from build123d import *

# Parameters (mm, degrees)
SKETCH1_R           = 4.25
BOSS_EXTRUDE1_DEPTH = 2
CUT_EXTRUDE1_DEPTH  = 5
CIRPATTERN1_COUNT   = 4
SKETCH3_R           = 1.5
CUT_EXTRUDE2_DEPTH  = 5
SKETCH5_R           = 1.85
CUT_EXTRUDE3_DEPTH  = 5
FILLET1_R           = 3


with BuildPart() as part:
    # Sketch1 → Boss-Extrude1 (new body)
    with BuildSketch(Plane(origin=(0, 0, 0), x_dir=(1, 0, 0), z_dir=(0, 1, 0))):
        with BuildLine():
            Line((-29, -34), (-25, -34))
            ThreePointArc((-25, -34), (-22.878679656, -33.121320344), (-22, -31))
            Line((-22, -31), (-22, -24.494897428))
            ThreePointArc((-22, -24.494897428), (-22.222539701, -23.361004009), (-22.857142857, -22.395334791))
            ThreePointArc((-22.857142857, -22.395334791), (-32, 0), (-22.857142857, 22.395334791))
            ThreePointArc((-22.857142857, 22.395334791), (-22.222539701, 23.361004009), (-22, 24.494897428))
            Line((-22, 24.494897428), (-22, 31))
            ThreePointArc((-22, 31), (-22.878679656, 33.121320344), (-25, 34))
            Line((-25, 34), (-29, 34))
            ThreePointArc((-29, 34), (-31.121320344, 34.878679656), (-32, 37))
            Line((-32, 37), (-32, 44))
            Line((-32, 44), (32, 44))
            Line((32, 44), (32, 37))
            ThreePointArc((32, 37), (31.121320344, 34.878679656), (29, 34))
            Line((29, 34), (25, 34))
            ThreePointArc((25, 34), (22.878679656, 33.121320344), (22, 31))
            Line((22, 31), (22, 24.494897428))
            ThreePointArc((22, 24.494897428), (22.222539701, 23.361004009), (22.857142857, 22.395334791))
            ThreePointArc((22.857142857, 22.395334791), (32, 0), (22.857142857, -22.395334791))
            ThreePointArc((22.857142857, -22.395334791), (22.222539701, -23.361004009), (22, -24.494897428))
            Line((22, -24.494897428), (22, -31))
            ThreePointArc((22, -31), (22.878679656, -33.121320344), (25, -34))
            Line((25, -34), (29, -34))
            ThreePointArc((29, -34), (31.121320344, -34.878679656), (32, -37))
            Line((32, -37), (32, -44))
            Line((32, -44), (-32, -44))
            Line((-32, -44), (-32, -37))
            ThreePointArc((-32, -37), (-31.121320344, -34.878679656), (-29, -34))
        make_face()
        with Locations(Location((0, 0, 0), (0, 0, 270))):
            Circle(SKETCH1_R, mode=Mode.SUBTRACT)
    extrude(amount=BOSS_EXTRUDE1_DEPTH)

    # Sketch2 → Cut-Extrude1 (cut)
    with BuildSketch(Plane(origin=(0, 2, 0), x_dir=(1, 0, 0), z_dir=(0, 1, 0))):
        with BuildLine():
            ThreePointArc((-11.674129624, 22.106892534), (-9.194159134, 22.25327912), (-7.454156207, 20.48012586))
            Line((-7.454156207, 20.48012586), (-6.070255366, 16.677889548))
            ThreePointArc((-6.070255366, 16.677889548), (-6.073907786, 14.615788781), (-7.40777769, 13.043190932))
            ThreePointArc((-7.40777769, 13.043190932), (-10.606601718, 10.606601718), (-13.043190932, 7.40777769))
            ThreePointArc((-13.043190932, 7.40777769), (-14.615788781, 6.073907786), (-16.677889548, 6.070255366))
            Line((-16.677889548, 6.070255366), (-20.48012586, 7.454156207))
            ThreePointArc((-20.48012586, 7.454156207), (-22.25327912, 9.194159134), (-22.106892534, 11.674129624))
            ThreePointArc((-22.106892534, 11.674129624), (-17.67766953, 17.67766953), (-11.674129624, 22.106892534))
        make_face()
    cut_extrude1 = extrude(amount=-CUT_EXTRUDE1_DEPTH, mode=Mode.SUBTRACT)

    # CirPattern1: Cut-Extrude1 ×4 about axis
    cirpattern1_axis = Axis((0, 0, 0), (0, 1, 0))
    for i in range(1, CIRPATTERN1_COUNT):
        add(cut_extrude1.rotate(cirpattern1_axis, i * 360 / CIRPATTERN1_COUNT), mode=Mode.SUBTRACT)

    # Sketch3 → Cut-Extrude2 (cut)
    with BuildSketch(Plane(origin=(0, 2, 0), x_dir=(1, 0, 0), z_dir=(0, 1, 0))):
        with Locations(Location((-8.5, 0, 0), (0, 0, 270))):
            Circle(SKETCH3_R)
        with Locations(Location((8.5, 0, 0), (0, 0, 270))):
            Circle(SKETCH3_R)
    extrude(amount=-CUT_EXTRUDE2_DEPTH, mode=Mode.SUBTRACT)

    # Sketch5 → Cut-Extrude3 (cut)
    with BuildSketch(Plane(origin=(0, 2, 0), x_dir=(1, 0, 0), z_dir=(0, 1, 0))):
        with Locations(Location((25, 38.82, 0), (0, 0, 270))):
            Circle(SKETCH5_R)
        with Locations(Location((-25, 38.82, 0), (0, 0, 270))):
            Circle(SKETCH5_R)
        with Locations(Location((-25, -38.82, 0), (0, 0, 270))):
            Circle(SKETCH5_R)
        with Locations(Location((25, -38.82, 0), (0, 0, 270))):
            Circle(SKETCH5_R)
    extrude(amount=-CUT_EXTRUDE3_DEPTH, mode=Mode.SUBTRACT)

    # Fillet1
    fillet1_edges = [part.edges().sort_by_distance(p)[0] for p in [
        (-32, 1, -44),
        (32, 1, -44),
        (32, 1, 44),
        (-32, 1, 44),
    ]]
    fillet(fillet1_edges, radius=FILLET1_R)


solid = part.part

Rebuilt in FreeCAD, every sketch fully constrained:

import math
import FreeCAD as App
import Part
import Sketcher

V = App.Vector
Q = App.Units.Quantity


def edges_at(feature, points):
    """Names of the edges that pass closest to the given points."""
    edges = feature.Shape.Edges
    near = lambda p: min(range(len(edges)), key=lambda i: edges[i].distToShape(Part.Vertex(*p))[0])
    return sorted({f"Edge{near(p) + 1}" for p in points})

doc = App.newDocument("Part")
params = doc.addObject("Spreadsheet::Sheet", "Params")
for row, (alias, value) in enumerate([
    ("sketch1_radius", "3 mm"),
    ("sketch1_radius2", "32 mm"),
    ("sketch1_diameter", "8.5 mm"),
    ("sketch1_width", "4 mm"),
    ("sketch1_width2", "64 mm"),
    ("pad1_length", "2 mm"),
    ("sketch2_radius", "3 mm"),
    ("sketch2_radius2", "25 mm"),
    ("sketch2_radius3", "15 mm"),
    ("pocket1_length", "5 mm"),
    ("sketch3_diameter", "3 mm"),
    ("pocket2_length", "5 mm"),
    ("sketch4_diameter", "3.7 mm"),
    ("pocket3_length", "5 mm"),
    ("fillet_radius", "3 mm"),
], start=1):
    params.set(f"A{row}", alias)
    params.set(f"B{row}", "=" + value)
    params.setAlias(f"B{row}", alias)

body = doc.addObject("PartDesign::Body", "Body")

# Sketch on XZ plane
sketch1 = body.newObject("Sketcher::SketchObject", "Sketch")
sketch1.AttachmentSupport = (doc.getObject("XZ_Plane"), [""])
sketch1.MapMode = "FlatFace"
sketch1.addGeometry(Part.LineSegment(V(-25, 34, 0), V(-29, 34, 0)), False)
sketch1.addGeometry(Part.ArcOfCircle(Part.Circle(V(-29, 37, 0), V(0, 0, 1), 3), math.radians(180), math.radians(270)), False)
sketch1.addGeometry(Part.LineSegment(V(-32, 37, 0), V(-32, 44, 0)), False)
sketch1.addGeometry(Part.LineSegment(V(-32, 44, 0), V(32, 44, 0)), False)
sketch1.addGeometry(Part.LineSegment(V(32, 44, 0), V(32, 37, 0)), False)
sketch1.addGeometry(Part.ArcOfCircle(Part.Circle(V(29, 37, 0), V(0, 0, 1), 3), math.radians(-90), math.radians(0)), False)
sketch1.addGeometry(Part.LineSegment(V(29, 34, 0), V(25, 34, 0)), False)
sketch1.addGeometry(Part.ArcOfCircle(Part.Circle(V(25, 31, 0), V(0, 0, 1), 3), math.radians(90), math.radians(180)), False)
sketch1.addGeometry(Part.LineSegment(V(22, 31, 0), V(22, 24.494897, 0)), False)
sketch1.addGeometry(Part.ArcOfCircle(Part.Circle(V(25, 24.494897, 0), V(0, 0, 1), 3), math.radians(-180), math.radians(-135.584691)), False)
sketch1.addGeometry(Part.ArcOfCircle(Part.Circle(V(0, 0, 0), V(0, 0, 1), 32), math.radians(-44.415309), math.radians(44.415309)), False)
sketch1.addGeometry(Part.ArcOfCircle(Part.Circle(V(25, -24.494897, 0), V(0, 0, 1), 3), math.radians(135.584691), math.radians(180)), False)
sketch1.addGeometry(Part.LineSegment(V(22, -24.494897, 0), V(22, -31, 0)), False)
sketch1.addGeometry(Part.ArcOfCircle(Part.Circle(V(25, -31, 0), V(0, 0, 1), 3), math.radians(180), math.radians(270)), False)
sketch1.addGeometry(Part.LineSegment(V(25, -34, 0), V(29, -34, 0)), False)
sketch1.addGeometry(Part.ArcOfCircle(Part.Circle(V(29, -37, 0), V(0, 0, 1), 3), math.radians(0), math.radians(90)), False)
sketch1.addGeometry(Part.LineSegment(V(32, -37, 0), V(32, -44, 0)), False)
sketch1.addGeometry(Part.LineSegment(V(32, -44, 0), V(-32, -44, 0)), False)
sketch1.addGeometry(Part.LineSegment(V(-32, -44, 0), V(-32, -37, 0)), False)
sketch1.addGeometry(Part.ArcOfCircle(Part.Circle(V(-29, -37, 0), V(0, 0, 1), 3), math.radians(90), math.radians(180)), False)
sketch1.addGeometry(Part.LineSegment(V(-29, -34, 0), V(-25, -34, 0)), False)
sketch1.addGeometry(Part.ArcOfCircle(Part.Circle(V(-25, -31, 0), V(0, 0, 1), 3), math.radians(-90), math.radians(0)), False)
sketch1.addGeometry(Part.LineSegment(V(-22, -31, 0), V(-22, -24.494897, 0)), False)
sketch1.addGeometry(Part.ArcOfCircle(Part.Circle(V(-25, -24.494897, 0), V(0, 0, 1), 3), math.radians(0), math.radians(44.415309)), False)
sketch1.addGeometry(Part.ArcOfCircle(Part.Circle(V(0, 0, 0), V(0, 0, 1), 32), math.radians(135.584691), math.radians(224.415309)), False)
sketch1.addGeometry(Part.ArcOfCircle(Part.Circle(V(-25, 24.494897, 0), V(0, 0, 1), 3), math.radians(-44.415309), math.radians(0)), False)
sketch1.addGeometry(Part.LineSegment(V(-22, 24.494897, 0), V(-22, 31, 0)), False)
sketch1.addGeometry(Part.ArcOfCircle(Part.Circle(V(-25, 31, 0), V(0, 0, 1), 3), math.radians(0), math.radians(90)), False)
sketch1.addGeometry(Part.Circle(V(0, 0, 0), V(0, 0, 1), 4.25), False)
sketch1.addConstraint(Sketcher.Constraint("Tangent", 0, 2, 1, 2))
sketch1.addConstraint(Sketcher.Constraint("Tangent", 1, 1, 2, 1))
sketch1.addConstraint(Sketcher.Constraint("Coincident", 2, 2, 3, 1))
sketch1.addConstraint(Sketcher.Constraint("Coincident", 3, 2, 4, 1))
sketch1.addConstraint(Sketcher.Constraint("Tangent", 4, 2, 5, 2))
sketch1.addConstraint(Sketcher.Constraint("Tangent", 5, 1, 6, 1))
sketch1.addConstraint(Sketcher.Constraint("Tangent", 6, 2, 7, 1))
sketch1.addConstraint(Sketcher.Constraint("Tangent", 7, 2, 8, 1))
sketch1.addConstraint(Sketcher.Constraint("Tangent", 8, 2, 9, 1))
sketch1.addConstraint(Sketcher.Constraint("Tangent", 9, 2, 10, 2))
sketch1.addConstraint(Sketcher.Constraint("Tangent", 10, 1, 11, 1))
sketch1.addConstraint(Sketcher.Constraint("Tangent", 11, 2, 12, 1))
sketch1.addConstraint(Sketcher.Constraint("Tangent", 12, 2, 13, 1))
sketch1.addConstraint(Sketcher.Constraint("Tangent", 13, 2, 14, 1))
sketch1.addConstraint(Sketcher.Constraint("Tangent", 14, 2, 15, 2))
sketch1.addConstraint(Sketcher.Constraint("Tangent", 15, 1, 16, 1))
sketch1.addConstraint(Sketcher.Constraint("Coincident", 16, 2, 17, 1))
sketch1.addConstraint(Sketcher.Constraint("Coincident", 17, 2, 18, 1))
sketch1.addConstraint(Sketcher.Constraint("Tangent", 18, 2, 19, 2))
sketch1.addConstraint(Sketcher.Constraint("Tangent", 19, 1, 20, 1))
sketch1.addConstraint(Sketcher.Constraint("Tangent", 20, 2, 21, 1))
sketch1.addConstraint(Sketcher.Constraint("Tangent", 21, 2, 22, 1))
sketch1.addConstraint(Sketcher.Constraint("Tangent", 22, 2, 23, 1))
sketch1.addConstraint(Sketcher.Constraint("Tangent", 23, 2, 24, 2))
sketch1.addConstraint(Sketcher.Constraint("Tangent", 24, 1, 25, 1))
sketch1.addConstraint(Sketcher.Constraint("Tangent", 25, 2, 26, 1))
sketch1.addConstraint(Sketcher.Constraint("Tangent", 26, 2, 27, 1))
sketch1.addConstraint(Sketcher.Constraint("Tangent", 27, 2, 0, 1))
sketch1.addConstraint(Sketcher.Constraint("Horizontal", 0))
sketch1.addConstraint(Sketcher.Constraint("Vertical", 2))
sketch1.addConstraint(Sketcher.Constraint("Horizontal", 3))
sketch1.addConstraint(Sketcher.Constraint("Vertical", 4))
sketch1.addConstraint(Sketcher.Constraint("Horizontal", 6))
sketch1.addConstraint(Sketcher.Constraint("Vertical", 8))
sketch1.addConstraint(Sketcher.Constraint("Vertical", 12))
sketch1.addConstraint(Sketcher.Constraint("Horizontal", 14))
sketch1.addConstraint(Sketcher.Constraint("Vertical", 16))
sketch1.addConstraint(Sketcher.Constraint("Horizontal", 17))
sketch1.addConstraint(Sketcher.Constraint("Vertical", 18))
sketch1.addConstraint(Sketcher.Constraint("Horizontal", 20))
sketch1.addConstraint(Sketcher.Constraint("Vertical", 22))
sketch1.addConstraint(Sketcher.Constraint("Vertical", 26))
sketch1.addConstraint(Sketcher.Constraint("Coincident", 10, 3, -1, 1))
sketch1.addConstraint(Sketcher.Constraint("Coincident", 24, 3, -1, 1))
sketch1.addConstraint(Sketcher.Constraint("Coincident", 28, 3, -1, 1))
sketch1.addConstraint(Sketcher.Constraint("Equal", 1, 5))
sketch1.addConstraint(Sketcher.Constraint("Equal", 5, 7))
sketch1.addConstraint(Sketcher.Constraint("Equal", 7, 9))
sketch1.addConstraint(Sketcher.Constraint("Equal", 9, 11))
sketch1.addConstraint(Sketcher.Constraint("Equal", 11, 13))
sketch1.addConstraint(Sketcher.Constraint("Equal", 13, 15))
sketch1.addConstraint(Sketcher.Constraint("Equal", 15, 19))
sketch1.addConstraint(Sketcher.Constraint("Equal", 19, 21))
sketch1.addConstraint(Sketcher.Constraint("Equal", 21, 23))
sketch1.addConstraint(Sketcher.Constraint("Equal", 10, 24))
sketch1.addConstraint(Sketcher.Constraint("Equal", 23, 25))
sketch1.addConstraint(Sketcher.Constraint("Equal", 25, 27))
sketch1.addConstraint(Sketcher.Constraint("Symmetric", 1, 3, 15, 3, -1, 1))
sketch1.addConstraint(Sketcher.Constraint("Symmetric", 5, 3, 19, 3, -1, 1))
sketch1.addConstraint(Sketcher.Constraint("Symmetric", 1, 3, 5, 3, -2))
sketch1.addConstraint(Sketcher.Constraint("Horizontal", 11, 3, 23, 3))
sketch1.addConstraint(Sketcher.Constraint("Horizontal", 9, 3, 25, 3))
sketch1.addConstraint(Sketcher.Constraint("Vertical", 9, 3, 11, 3))
sketch1.addConstraint(Sketcher.Constraint("Equal", 4, 16))
sketch1.addConstraint(Sketcher.Constraint("Radius", 1, Q("3 mm")))
sketch1.addConstraint(Sketcher.Constraint("Radius", 10, Q("32 mm")))
sketch1.addConstraint(Sketcher.Constraint("Diameter", 28, Q("8.5 mm")))
sketch1.addConstraint(Sketcher.Constraint("DistanceX", 0, 2, 0, 1, Q("4 mm")))
sketch1.addConstraint(Sketcher.Constraint("DistanceX", 3, 1, 3, 2, Q("64 mm")))
sketch1.addConstraint(Sketcher.Constraint("DistanceY", 2, 1, 2, 2, Q("7 mm")))
sketch1.addConstraint(Sketcher.Constraint("DistanceY", -1, 1, 1, 3, Q("37 mm")))
sketch1.setExpression("Constraints[64]", "Params.sketch1_radius")
sketch1.setExpression("Constraints[65]", "Params.sketch1_radius2")
sketch1.setExpression("Constraints[66]", "Params.sketch1_diameter")
sketch1.setExpression("Constraints[67]", "Params.sketch1_width")
sketch1.setExpression("Constraints[68]", "Params.sketch1_width2")
pad1 = body.newObject("PartDesign::Pad", "Pad")
pad1.Profile = sketch1
pad1.setExpression("Length", "Params.pad1_length")
pad1.Reversed = True

# Sketch on XZ plane
sketch2 = body.newObject("Sketcher::SketchObject", "Sketch001")
sketch2.AttachmentSupport = (doc.getObject("XZ_Plane"), [""])
sketch2.MapMode = "FlatFace"
sketch2.AttachmentOffset = App.Placement(V(0, 0, -2), App.Rotation())
sketch2.addGeometry(Part.ArcOfCircle(Part.Circle(V(-10.273234, -19.454065, 0), V(0, 0, 1), 3), math.radians(-117.83748), math.radians(-20)), False)
sketch2.addGeometry(Part.ArcOfCircle(Part.Circle(V(0, 0, 0), V(0, 0, 1), 25), math.radians(-152.16252), math.radians(-117.83748)), False)
sketch2.addGeometry(Part.ArcOfCircle(Part.Circle(V(-19.454065, -10.273234, 0), V(0, 0, 1), 3), math.radians(110), math.radians(207.83748)), False)
sketch2.addGeometry(Part.LineSegment(V(-20.480126, -7.454156, 0), V(-16.67789, -6.070255, 0)), False)
sketch2.addGeometry(Part.ArcOfCircle(Part.Circle(V(-15.651829, -8.889333, 0), V(0, 0, 1), 3), math.radians(29.594068), math.radians(110)), False)
sketch2.addGeometry(Part.ArcOfCircle(Part.Circle(V(0, 0, 0), V(0, 0, 1), 15), math.radians(-150.405932), math.radians(-119.594068)), False)
sketch2.addGeometry(Part.ArcOfCircle(Part.Circle(V(-8.889333, -15.651829, 0), V(0, 0, 1), 3), math.radians(-20), math.radians(60.405932)), False)
sketch2.addGeometry(Part.LineSegment(V(-6.070255, -16.67789, 0), V(-7.454156, -20.480126, 0)), False)
sketch2.addConstraint(Sketcher.Constraint("Tangent", 0, 1, 1, 2))
sketch2.addConstraint(Sketcher.Constraint("Tangent", 1, 1, 2, 2))
sketch2.addConstraint(Sketcher.Constraint("Tangent", 2, 1, 3, 1))
sketch2.addConstraint(Sketcher.Constraint("Tangent", 3, 2, 4, 2))
sketch2.addConstraint(Sketcher.Constraint("Tangent", 4, 1, 5, 1))
sketch2.addConstraint(Sketcher.Constraint("Tangent", 5, 2, 6, 2))
sketch2.addConstraint(Sketcher.Constraint("Tangent", 6, 1, 7, 1))
sketch2.addConstraint(Sketcher.Constraint("Tangent", 7, 2, 0, 2))
sketch2.addConstraint(Sketcher.Constraint("Coincident", 1, 3, -1, 1))
sketch2.addConstraint(Sketcher.Constraint("Coincident", 5, 3, -1, 1))
sketch2.addConstraint(Sketcher.Constraint("Equal", 0, 2))
sketch2.addConstraint(Sketcher.Constraint("Equal", 2, 4))
sketch2.addConstraint(Sketcher.Constraint("Equal", 4, 6))
sketch2.addConstraint(Sketcher.Constraint("Equal", 3, 7))
sketch2.addConstraint(Sketcher.Constraint("Radius", 0, Q("3 mm")))
sketch2.addConstraint(Sketcher.Constraint("Radius", 1, Q("25 mm")))
sketch2.addConstraint(Sketcher.Constraint("Radius", 5, Q("15 mm")))
sketch2.addConstraint(Sketcher.Constraint("Angle", 3, Q("20 deg")))
sketch2.addConstraint(Sketcher.Constraint("Angle", 7, Q("-110 deg")))
sketch2.addConstraint(Sketcher.Constraint("DistanceY", 2, 3, 4, 3, Q("1.383901 mm")))
sketch2.setExpression("Constraints[14]", "Params.sketch2_radius")
sketch2.setExpression("Constraints[15]", "Params.sketch2_radius2")
sketch2.setExpression("Constraints[16]", "Params.sketch2_radius3")
pocket1 = body.newObject("PartDesign::Pocket", "Pocket")
pocket1.Profile = sketch2
pocket1.setExpression("Length", "Params.pocket1_length")
pocket1.Reversed = True
doc.recompute()

polarpattern = body.newObject("PartDesign::PolarPattern", "PolarPattern")
polarpattern.Originals = [pocket1]
polarpattern.Axis = (doc.getObject("Y_Axis"), [""])
polarpattern.Angle = 360
polarpattern.Occurrences = 4
body.Tip = polarpattern

# Sketch on XZ plane
sketch3 = body.newObject("Sketcher::SketchObject", "Sketch002")
sketch3.AttachmentSupport = (doc.getObject("XZ_Plane"), [""])
sketch3.MapMode = "FlatFace"
sketch3.AttachmentOffset = App.Placement(V(0, 0, -2), App.Rotation())
sketch3.addGeometry(Part.Circle(V(-8.5, 0, 0), V(0, 0, 1), 1.5), False)
sketch3.addGeometry(Part.Circle(V(8.5, 0, 0), V(0, 0, 1), 1.5), False)
sketch3.addConstraint(Sketcher.Constraint("Equal", 0, 1))
sketch3.addConstraint(Sketcher.Constraint("Symmetric", 0, 3, 1, 3, -1, 1))
sketch3.addConstraint(Sketcher.Constraint("PointOnObject", 0, 3, -1))
sketch3.addConstraint(Sketcher.Constraint("Diameter", 0, Q("3 mm")))
sketch3.addConstraint(Sketcher.Constraint("DistanceX", 0, 3, 1, 3, Q("17 mm")))
sketch3.setExpression("Constraints[3]", "Params.sketch3_diameter")
pocket2 = body.newObject("PartDesign::Pocket", "Pocket001")
pocket2.Profile = sketch3
pocket2.setExpression("Length", "Params.pocket2_length")
pocket2.Reversed = True

# Sketch on XZ plane
sketch4 = body.newObject("Sketcher::SketchObject", "Sketch003")
sketch4.AttachmentSupport = (doc.getObject("XZ_Plane"), [""])
sketch4.MapMode = "FlatFace"
sketch4.AttachmentOffset = App.Placement(V(0, 0, -2), App.Rotation())
sketch4.addGeometry(Part.Circle(V(25, -38.82, 0), V(0, 0, 1), 1.85), False)
sketch4.addGeometry(Part.Circle(V(-25, -38.82, 0), V(0, 0, 1), 1.85), False)
sketch4.addGeometry(Part.Circle(V(-25, 38.82, 0), V(0, 0, 1), 1.85), False)
sketch4.addGeometry(Part.Circle(V(25, 38.82, 0), V(0, 0, 1), 1.85), False)
sketch4.addConstraint(Sketcher.Constraint("Equal", 0, 1))
sketch4.addConstraint(Sketcher.Constraint("Equal", 1, 2))
sketch4.addConstraint(Sketcher.Constraint("Equal", 2, 3))
sketch4.addConstraint(Sketcher.Constraint("Symmetric", 0, 3, 2, 3, -1, 1))
sketch4.addConstraint(Sketcher.Constraint("Symmetric", 1, 3, 3, 3, -1, 1))
sketch4.addConstraint(Sketcher.Constraint("Symmetric", 0, 3, 1, 3, -2))
sketch4.addConstraint(Sketcher.Constraint("Diameter", 0, Q("3.7 mm")))
sketch4.addConstraint(Sketcher.Constraint("DistanceX", -1, 1, 0, 3, Q("25 mm")))
sketch4.addConstraint(Sketcher.Constraint("DistanceY", 0, 3, -1, 1, Q("38.82 mm")))
sketch4.setExpression("Constraints[6]", "Params.sketch4_diameter")
pocket3 = body.newObject("PartDesign::Pocket", "Pocket002")
pocket3.Profile = sketch4
pocket3.setExpression("Length", "Params.pocket3_length")
pocket3.Reversed = True
doc.recompute()

fillet = body.newObject("PartDesign::Fillet", "Fillet")
fillet.Base = (pocket3, edges_at(pocket3, [
    (-32, 1, -44),
    (32, 1, -44),
    (32, 1, 44),
    (-32, 1, 44),
]))
fillet.setExpression("Radius", "Params.fillet_radius")

doc.recompute()
